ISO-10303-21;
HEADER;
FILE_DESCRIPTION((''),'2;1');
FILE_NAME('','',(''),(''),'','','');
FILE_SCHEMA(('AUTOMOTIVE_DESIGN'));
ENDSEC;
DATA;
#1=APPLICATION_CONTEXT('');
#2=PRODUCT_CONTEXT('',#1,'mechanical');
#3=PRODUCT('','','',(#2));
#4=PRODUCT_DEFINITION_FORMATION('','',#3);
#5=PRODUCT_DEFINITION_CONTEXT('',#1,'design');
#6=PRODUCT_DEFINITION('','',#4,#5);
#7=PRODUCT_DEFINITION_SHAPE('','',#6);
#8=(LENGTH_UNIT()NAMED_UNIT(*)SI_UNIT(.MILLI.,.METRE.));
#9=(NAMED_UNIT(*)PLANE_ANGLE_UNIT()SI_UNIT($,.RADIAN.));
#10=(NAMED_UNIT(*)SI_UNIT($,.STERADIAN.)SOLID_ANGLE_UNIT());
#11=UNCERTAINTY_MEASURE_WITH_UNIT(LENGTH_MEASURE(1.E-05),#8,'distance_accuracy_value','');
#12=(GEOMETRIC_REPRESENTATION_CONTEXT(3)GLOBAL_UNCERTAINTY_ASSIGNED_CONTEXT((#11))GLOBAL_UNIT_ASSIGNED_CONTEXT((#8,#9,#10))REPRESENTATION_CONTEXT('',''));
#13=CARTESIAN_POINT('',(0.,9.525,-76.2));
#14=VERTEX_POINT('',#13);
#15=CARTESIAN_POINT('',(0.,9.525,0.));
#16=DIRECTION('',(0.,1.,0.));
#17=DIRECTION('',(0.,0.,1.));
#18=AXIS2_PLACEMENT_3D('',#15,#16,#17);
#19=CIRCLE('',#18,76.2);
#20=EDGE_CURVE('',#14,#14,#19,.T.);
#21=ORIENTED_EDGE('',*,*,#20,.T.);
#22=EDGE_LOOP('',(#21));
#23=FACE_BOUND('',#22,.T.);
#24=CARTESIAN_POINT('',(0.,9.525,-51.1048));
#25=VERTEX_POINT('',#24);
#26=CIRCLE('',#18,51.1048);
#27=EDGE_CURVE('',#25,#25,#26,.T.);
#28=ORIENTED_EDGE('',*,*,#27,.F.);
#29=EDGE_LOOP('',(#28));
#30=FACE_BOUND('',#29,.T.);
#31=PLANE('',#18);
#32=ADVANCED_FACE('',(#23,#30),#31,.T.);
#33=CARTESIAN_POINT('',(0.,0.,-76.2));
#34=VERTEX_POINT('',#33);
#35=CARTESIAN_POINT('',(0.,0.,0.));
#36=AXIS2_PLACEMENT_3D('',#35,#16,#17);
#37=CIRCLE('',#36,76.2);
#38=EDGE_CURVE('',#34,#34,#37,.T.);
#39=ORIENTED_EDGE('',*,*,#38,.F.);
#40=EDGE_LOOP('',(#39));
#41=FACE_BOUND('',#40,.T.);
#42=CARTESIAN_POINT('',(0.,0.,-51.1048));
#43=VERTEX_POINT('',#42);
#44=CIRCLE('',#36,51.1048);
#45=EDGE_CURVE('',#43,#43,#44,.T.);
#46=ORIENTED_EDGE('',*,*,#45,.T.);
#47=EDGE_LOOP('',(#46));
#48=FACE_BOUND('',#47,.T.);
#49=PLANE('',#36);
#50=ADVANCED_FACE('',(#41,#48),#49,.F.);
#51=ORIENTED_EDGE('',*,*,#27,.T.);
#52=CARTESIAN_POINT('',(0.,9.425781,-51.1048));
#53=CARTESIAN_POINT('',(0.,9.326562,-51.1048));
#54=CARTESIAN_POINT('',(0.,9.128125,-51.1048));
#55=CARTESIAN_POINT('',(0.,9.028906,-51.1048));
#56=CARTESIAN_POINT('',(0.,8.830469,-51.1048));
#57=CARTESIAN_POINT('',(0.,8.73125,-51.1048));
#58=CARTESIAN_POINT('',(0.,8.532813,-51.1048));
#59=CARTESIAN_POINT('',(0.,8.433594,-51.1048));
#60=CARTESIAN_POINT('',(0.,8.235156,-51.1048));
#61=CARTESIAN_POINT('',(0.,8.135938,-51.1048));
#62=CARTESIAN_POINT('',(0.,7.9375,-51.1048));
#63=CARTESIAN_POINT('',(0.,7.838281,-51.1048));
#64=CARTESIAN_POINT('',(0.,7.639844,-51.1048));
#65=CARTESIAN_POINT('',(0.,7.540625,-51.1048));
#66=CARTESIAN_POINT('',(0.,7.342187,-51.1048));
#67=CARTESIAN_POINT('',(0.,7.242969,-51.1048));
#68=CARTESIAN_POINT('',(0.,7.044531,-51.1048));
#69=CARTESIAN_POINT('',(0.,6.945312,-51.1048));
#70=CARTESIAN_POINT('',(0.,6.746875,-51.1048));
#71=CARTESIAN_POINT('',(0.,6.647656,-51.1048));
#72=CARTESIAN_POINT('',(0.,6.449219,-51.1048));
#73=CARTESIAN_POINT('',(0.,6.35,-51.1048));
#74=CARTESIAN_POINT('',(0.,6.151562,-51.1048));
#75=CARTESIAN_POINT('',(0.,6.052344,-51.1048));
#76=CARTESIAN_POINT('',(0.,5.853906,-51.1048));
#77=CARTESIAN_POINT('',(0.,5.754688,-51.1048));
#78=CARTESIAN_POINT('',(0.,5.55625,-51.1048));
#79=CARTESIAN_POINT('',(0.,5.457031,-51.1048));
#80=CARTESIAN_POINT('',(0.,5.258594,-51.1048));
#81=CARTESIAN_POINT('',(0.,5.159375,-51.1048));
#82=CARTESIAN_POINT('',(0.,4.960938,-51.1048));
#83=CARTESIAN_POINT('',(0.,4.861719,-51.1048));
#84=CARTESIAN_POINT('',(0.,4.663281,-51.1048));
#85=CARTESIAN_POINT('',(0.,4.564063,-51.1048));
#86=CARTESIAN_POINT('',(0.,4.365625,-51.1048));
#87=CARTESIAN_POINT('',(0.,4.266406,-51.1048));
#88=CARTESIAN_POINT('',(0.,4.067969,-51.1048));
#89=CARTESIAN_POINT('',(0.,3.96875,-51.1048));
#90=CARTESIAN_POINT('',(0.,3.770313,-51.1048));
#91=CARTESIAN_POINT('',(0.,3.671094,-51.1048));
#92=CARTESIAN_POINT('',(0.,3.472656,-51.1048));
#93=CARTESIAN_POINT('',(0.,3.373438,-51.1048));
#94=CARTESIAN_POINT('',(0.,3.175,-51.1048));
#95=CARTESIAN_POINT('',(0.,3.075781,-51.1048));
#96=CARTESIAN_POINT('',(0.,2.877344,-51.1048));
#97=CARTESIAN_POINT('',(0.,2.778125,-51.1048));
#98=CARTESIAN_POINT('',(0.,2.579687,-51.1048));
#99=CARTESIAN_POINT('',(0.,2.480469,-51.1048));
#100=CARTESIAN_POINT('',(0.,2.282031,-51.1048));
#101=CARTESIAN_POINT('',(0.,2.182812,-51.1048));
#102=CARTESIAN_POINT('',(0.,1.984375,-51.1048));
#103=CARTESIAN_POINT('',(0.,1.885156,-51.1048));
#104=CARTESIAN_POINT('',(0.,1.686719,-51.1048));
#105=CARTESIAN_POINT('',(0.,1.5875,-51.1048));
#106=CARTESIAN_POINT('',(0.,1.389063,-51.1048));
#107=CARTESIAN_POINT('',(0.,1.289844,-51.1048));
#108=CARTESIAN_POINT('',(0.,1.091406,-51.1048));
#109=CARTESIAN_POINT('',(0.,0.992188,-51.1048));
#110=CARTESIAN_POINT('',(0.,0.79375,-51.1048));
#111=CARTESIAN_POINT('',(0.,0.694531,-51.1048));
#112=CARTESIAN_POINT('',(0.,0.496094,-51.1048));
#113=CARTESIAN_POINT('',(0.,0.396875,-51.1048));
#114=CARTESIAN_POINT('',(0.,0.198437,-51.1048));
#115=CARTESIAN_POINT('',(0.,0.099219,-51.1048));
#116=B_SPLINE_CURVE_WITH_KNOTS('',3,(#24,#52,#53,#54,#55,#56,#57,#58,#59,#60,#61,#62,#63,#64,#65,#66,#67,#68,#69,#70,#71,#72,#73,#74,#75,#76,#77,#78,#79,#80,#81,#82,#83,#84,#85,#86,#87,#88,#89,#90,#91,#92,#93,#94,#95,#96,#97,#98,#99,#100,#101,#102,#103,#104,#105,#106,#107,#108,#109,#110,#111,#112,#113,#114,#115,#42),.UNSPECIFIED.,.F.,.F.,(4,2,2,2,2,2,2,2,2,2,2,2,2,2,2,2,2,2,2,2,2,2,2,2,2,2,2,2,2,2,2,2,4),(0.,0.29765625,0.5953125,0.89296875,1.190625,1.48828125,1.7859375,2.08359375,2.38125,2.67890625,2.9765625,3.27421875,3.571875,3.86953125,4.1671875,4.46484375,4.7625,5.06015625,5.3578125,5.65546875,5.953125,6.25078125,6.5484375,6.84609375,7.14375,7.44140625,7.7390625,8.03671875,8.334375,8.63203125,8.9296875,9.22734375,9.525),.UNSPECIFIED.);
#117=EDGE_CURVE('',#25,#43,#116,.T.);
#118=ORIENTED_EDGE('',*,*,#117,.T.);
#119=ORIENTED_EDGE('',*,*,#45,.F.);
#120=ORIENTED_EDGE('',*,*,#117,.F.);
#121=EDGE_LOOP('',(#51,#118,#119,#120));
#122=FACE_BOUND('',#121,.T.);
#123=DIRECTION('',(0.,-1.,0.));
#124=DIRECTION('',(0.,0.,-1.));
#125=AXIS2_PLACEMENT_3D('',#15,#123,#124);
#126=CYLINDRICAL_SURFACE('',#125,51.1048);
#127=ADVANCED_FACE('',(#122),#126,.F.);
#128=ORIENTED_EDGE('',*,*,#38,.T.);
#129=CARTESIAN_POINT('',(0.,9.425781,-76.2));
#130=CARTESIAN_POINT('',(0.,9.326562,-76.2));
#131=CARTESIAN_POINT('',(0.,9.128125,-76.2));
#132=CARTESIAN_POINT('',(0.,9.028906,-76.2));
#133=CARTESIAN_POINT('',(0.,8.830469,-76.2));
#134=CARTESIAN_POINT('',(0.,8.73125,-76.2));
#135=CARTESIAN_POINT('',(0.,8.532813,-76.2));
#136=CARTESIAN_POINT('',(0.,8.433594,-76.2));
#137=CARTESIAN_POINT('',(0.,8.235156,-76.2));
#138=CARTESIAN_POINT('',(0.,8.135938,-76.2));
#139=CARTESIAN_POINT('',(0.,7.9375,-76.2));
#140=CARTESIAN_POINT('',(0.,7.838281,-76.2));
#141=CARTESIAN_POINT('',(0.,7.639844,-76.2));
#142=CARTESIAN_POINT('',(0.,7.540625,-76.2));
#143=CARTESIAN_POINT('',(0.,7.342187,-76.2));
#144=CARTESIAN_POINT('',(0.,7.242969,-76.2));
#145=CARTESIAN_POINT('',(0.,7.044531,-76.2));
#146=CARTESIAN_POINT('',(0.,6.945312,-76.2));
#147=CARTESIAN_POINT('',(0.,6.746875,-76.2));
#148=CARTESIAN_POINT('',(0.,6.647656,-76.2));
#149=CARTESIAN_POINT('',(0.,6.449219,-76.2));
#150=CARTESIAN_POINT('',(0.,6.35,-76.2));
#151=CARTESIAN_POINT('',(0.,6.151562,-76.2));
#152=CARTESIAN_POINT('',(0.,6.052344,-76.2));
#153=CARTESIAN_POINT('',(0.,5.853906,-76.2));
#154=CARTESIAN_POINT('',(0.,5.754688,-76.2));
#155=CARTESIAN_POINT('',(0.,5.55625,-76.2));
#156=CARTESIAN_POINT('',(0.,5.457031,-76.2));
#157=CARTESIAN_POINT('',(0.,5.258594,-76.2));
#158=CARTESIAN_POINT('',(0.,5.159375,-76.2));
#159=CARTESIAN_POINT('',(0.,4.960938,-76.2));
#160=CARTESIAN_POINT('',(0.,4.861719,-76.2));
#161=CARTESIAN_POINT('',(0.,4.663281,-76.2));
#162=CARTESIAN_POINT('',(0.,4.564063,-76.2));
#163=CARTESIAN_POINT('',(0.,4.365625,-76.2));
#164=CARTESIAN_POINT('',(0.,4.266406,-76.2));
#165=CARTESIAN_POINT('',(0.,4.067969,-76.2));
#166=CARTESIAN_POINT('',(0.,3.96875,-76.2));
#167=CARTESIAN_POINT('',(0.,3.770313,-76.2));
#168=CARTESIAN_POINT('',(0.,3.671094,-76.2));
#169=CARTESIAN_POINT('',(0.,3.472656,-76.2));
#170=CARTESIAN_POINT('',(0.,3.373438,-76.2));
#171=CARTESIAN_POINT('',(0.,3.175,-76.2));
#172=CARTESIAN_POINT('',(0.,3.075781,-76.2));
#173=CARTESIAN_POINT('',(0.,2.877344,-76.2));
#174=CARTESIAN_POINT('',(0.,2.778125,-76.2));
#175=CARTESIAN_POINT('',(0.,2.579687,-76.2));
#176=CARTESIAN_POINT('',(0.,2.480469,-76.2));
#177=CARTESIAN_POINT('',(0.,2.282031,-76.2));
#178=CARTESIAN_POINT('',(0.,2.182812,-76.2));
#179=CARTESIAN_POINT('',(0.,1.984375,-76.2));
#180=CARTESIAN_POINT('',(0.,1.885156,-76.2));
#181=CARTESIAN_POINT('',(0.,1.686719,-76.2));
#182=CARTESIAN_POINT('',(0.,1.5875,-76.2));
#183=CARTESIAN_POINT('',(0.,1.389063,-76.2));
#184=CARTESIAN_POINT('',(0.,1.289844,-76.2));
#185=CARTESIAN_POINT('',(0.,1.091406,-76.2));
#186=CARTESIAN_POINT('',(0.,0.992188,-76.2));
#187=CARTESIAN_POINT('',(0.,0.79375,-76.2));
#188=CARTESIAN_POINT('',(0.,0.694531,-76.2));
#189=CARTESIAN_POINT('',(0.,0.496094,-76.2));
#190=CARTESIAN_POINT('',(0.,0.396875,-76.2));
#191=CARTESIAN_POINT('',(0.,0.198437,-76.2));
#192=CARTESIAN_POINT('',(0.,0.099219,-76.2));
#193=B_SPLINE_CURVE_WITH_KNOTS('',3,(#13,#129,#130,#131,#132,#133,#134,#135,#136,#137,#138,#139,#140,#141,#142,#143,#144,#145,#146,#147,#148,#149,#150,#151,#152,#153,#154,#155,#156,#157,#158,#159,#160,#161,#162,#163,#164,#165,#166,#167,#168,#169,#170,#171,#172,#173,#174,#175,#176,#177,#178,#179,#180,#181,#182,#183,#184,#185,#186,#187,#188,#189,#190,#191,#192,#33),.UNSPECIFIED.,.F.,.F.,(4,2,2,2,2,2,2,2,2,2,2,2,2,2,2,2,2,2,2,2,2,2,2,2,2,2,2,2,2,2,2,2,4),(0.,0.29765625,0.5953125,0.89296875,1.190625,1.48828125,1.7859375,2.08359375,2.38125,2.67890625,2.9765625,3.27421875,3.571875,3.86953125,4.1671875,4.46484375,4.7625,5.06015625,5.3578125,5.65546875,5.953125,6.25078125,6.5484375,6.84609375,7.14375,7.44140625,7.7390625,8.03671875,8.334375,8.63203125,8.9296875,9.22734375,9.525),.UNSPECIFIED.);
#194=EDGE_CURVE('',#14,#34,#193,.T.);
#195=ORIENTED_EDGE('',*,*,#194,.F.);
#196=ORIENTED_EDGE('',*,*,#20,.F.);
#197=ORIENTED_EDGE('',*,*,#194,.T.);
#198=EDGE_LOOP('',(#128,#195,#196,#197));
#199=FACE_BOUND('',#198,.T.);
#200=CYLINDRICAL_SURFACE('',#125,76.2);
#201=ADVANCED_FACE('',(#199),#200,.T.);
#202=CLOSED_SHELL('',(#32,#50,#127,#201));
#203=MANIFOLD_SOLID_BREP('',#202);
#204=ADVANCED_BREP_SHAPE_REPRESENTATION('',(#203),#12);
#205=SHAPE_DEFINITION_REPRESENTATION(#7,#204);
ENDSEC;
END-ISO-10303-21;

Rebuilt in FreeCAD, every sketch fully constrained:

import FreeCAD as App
import Part
import Sketcher
Q = App.Units.Quantity

doc = App.newDocument("Part")
body = doc.addObject("PartDesign::Body", "Body")

# Sketch on XZ plane
sketch1 = doc.addObject("Sketcher::SketchObject", "Sketch")
body.addObject(sketch1)
sketch1.AttachmentSupport = (doc.XZ_Plane, [""])
sketch1.MapMode = "FlatFace"
sketch1.addGeometry([
    Part.Circle(App.Vector(0, 0, 0), App.Vector(0, 0, 1), 76.2),
    Part.Circle(App.Vector(0, 0, 0), App.Vector(0, 0, 1), 51.1048),
], False)
sketch1.addConstraint([
    Sketcher.Constraint("Coincident", 0, 3, -1, 1),
    Sketcher.Constraint("Coincident", 1, 3, -1, 1),
    Sketcher.Constraint("Diameter", 0, Q("6 in")),
    Sketcher.Constraint("Diameter", 1, Q("4.024 in")),
])
pad1 = doc.addObject("PartDesign::Pad", "Pad")
body.addObject(pad1)
pad1.Profile = sketch1
pad1.Length = Q("0.375 in")
pad1.Reversed = True

doc.recompute()
